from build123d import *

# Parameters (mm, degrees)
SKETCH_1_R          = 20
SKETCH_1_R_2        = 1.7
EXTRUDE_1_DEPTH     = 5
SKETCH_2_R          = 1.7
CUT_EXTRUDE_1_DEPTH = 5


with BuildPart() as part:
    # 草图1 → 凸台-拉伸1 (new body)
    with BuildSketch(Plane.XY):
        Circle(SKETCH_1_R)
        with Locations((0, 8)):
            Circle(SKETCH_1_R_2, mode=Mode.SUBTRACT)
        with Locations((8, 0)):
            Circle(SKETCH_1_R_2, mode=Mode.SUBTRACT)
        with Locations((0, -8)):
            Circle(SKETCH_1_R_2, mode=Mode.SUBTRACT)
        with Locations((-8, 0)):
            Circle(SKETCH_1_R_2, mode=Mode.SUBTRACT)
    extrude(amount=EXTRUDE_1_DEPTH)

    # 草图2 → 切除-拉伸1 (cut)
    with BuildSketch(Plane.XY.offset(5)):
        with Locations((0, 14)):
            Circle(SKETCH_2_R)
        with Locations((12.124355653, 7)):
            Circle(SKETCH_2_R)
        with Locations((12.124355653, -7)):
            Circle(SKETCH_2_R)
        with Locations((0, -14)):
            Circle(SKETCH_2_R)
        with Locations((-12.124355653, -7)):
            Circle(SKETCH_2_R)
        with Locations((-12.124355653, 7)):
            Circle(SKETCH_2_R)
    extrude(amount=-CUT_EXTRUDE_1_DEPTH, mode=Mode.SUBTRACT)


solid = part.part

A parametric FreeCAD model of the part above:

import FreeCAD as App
import Part
import Sketcher
from FreeCAD import Vector

doc = App.newDocument("Part")
body = doc.addObject("PartDesign::Body", "Body")

sketch1 = body.newObject("Sketcher::SketchObject", "Sketch")
sketch1.AttachmentSupport = (doc.getObject("XY_Plane"), [""])
sketch1.MapMode = "FlatFace"
sketch1.addGeometry([
    Part.Circle(Vector(0, 0, 0), Vector(0, 0, 1), 20),
    Part.Circle(Vector(0, -8, 0), Vector(0, 0, 1), 1.7),
    Part.Circle(Vector(-8, 0, 0), Vector(0, 0, 1), 1.7),
    Part.Circle(Vector(8, 0, 0), Vector(0, 0, 1), 1.7),
    Part.Circle(Vector(0, 8, 0), Vector(0, 0, 1), 1.7),
], False)
sketch1.addConstraint([
    Sketcher.Constraint("Coincident", 0, 3, -1, 1),
    Sketcher.Constraint("Equal", 1, 2),
    Sketcher.Constraint("Equal", 2, 3),
    Sketcher.Constraint("Equal", 3, 4),
    Sketcher.Constraint("Symmetric", 2, 3, 3, 3, -1, 1),
    Sketcher.Constraint("Symmetric", 1, 3, 4, 3, -1, 1),
    Sketcher.Constraint("PointOnObject", 1, 3, -2),
    Sketcher.Constraint("PointOnObject", 2, 3, -1),
    Sketcher.Constraint("Diameter", 0, 40.0),
    Sketcher.Constraint("Diameter", 1, 3.4),
    Sketcher.Constraint("DistanceY", 1, 3, -1, 1, 8.0),
    Sketcher.Constraint("DistanceX", 2, 3, -1, 1, 8.0),
])
pad1 = body.newObject("PartDesign::Pad", "Pad")
pad1.Profile = sketch1
pad1.Length = 5

sketch2 = body.newObject("Sketcher::SketchObject", "Sketch001")
sketch2.AttachmentSupport = (doc.getObject("XY_Plane"), [""])
sketch2.MapMode = "FlatFace"
sketch2.AttachmentOffset = App.Placement(Vector(0, 0, 5), App.Rotation())
sketch2.addGeometry([
    Part.Circle(Vector(0, 14, 0), Vector(0, 0, 1), 1.7),
    Part.Circle(Vector(12.1, 7, 0), Vector(0, 0, 1), 1.7),
    Part.Circle(Vector(12.1, -7, 0), Vector(0, 0, 1), 1.7),
    Part.Circle(Vector(0, -14, 0), Vector(0, 0, 1), 1.7),
    Part.Circle(Vector(-12.1, -7, 0), Vector(0, 0, 1), 1.7),
    Part.Circle(Vector(-12.1, 7, 0), Vector(0, 0, 1), 1.7),
], False)
sketch2.addConstraint([
    Sketcher.Constraint("Equal", 0, 1),
    Sketcher.Constraint("Equal", 1, 2),
    Sketcher.Constraint("Equal", 2, 3),
    Sketcher.Constraint("Equal", 3, 4),
    Sketcher.Constraint("Equal", 4, 5),
    Sketcher.Constraint("Symmetric", 0, 3, 3, 3, -1, 1),
    Sketcher.Constraint("Symmetric", 1, 3, 4, 3, -1, 1),
    Sketcher.Constraint("Symmetric", 2, 3, 5, 3, -1, 1),
    Sketcher.Constraint("Symmetric", 2, 3, 4, 3, -2),
    Sketcher.Constraint("PointOnObject", 0, 3, -2),
    Sketcher.Constraint("Diameter", 0, 3.4),
    Sketcher.Constraint("DistanceY", -1, 1, 0, 3, 14.0),
    Sketcher.Constraint("DistanceY", -1, 1, 1, 3, 7.0),
    Sketcher.Constraint("DistanceX", 4, 3, 2, 3, 24.248711),
])
pocket1 = body.newObject("PartDesign::Pocket", "Pocket")
pocket1.Profile = sketch2
pocket1.Length = 5

doc.recompute()
